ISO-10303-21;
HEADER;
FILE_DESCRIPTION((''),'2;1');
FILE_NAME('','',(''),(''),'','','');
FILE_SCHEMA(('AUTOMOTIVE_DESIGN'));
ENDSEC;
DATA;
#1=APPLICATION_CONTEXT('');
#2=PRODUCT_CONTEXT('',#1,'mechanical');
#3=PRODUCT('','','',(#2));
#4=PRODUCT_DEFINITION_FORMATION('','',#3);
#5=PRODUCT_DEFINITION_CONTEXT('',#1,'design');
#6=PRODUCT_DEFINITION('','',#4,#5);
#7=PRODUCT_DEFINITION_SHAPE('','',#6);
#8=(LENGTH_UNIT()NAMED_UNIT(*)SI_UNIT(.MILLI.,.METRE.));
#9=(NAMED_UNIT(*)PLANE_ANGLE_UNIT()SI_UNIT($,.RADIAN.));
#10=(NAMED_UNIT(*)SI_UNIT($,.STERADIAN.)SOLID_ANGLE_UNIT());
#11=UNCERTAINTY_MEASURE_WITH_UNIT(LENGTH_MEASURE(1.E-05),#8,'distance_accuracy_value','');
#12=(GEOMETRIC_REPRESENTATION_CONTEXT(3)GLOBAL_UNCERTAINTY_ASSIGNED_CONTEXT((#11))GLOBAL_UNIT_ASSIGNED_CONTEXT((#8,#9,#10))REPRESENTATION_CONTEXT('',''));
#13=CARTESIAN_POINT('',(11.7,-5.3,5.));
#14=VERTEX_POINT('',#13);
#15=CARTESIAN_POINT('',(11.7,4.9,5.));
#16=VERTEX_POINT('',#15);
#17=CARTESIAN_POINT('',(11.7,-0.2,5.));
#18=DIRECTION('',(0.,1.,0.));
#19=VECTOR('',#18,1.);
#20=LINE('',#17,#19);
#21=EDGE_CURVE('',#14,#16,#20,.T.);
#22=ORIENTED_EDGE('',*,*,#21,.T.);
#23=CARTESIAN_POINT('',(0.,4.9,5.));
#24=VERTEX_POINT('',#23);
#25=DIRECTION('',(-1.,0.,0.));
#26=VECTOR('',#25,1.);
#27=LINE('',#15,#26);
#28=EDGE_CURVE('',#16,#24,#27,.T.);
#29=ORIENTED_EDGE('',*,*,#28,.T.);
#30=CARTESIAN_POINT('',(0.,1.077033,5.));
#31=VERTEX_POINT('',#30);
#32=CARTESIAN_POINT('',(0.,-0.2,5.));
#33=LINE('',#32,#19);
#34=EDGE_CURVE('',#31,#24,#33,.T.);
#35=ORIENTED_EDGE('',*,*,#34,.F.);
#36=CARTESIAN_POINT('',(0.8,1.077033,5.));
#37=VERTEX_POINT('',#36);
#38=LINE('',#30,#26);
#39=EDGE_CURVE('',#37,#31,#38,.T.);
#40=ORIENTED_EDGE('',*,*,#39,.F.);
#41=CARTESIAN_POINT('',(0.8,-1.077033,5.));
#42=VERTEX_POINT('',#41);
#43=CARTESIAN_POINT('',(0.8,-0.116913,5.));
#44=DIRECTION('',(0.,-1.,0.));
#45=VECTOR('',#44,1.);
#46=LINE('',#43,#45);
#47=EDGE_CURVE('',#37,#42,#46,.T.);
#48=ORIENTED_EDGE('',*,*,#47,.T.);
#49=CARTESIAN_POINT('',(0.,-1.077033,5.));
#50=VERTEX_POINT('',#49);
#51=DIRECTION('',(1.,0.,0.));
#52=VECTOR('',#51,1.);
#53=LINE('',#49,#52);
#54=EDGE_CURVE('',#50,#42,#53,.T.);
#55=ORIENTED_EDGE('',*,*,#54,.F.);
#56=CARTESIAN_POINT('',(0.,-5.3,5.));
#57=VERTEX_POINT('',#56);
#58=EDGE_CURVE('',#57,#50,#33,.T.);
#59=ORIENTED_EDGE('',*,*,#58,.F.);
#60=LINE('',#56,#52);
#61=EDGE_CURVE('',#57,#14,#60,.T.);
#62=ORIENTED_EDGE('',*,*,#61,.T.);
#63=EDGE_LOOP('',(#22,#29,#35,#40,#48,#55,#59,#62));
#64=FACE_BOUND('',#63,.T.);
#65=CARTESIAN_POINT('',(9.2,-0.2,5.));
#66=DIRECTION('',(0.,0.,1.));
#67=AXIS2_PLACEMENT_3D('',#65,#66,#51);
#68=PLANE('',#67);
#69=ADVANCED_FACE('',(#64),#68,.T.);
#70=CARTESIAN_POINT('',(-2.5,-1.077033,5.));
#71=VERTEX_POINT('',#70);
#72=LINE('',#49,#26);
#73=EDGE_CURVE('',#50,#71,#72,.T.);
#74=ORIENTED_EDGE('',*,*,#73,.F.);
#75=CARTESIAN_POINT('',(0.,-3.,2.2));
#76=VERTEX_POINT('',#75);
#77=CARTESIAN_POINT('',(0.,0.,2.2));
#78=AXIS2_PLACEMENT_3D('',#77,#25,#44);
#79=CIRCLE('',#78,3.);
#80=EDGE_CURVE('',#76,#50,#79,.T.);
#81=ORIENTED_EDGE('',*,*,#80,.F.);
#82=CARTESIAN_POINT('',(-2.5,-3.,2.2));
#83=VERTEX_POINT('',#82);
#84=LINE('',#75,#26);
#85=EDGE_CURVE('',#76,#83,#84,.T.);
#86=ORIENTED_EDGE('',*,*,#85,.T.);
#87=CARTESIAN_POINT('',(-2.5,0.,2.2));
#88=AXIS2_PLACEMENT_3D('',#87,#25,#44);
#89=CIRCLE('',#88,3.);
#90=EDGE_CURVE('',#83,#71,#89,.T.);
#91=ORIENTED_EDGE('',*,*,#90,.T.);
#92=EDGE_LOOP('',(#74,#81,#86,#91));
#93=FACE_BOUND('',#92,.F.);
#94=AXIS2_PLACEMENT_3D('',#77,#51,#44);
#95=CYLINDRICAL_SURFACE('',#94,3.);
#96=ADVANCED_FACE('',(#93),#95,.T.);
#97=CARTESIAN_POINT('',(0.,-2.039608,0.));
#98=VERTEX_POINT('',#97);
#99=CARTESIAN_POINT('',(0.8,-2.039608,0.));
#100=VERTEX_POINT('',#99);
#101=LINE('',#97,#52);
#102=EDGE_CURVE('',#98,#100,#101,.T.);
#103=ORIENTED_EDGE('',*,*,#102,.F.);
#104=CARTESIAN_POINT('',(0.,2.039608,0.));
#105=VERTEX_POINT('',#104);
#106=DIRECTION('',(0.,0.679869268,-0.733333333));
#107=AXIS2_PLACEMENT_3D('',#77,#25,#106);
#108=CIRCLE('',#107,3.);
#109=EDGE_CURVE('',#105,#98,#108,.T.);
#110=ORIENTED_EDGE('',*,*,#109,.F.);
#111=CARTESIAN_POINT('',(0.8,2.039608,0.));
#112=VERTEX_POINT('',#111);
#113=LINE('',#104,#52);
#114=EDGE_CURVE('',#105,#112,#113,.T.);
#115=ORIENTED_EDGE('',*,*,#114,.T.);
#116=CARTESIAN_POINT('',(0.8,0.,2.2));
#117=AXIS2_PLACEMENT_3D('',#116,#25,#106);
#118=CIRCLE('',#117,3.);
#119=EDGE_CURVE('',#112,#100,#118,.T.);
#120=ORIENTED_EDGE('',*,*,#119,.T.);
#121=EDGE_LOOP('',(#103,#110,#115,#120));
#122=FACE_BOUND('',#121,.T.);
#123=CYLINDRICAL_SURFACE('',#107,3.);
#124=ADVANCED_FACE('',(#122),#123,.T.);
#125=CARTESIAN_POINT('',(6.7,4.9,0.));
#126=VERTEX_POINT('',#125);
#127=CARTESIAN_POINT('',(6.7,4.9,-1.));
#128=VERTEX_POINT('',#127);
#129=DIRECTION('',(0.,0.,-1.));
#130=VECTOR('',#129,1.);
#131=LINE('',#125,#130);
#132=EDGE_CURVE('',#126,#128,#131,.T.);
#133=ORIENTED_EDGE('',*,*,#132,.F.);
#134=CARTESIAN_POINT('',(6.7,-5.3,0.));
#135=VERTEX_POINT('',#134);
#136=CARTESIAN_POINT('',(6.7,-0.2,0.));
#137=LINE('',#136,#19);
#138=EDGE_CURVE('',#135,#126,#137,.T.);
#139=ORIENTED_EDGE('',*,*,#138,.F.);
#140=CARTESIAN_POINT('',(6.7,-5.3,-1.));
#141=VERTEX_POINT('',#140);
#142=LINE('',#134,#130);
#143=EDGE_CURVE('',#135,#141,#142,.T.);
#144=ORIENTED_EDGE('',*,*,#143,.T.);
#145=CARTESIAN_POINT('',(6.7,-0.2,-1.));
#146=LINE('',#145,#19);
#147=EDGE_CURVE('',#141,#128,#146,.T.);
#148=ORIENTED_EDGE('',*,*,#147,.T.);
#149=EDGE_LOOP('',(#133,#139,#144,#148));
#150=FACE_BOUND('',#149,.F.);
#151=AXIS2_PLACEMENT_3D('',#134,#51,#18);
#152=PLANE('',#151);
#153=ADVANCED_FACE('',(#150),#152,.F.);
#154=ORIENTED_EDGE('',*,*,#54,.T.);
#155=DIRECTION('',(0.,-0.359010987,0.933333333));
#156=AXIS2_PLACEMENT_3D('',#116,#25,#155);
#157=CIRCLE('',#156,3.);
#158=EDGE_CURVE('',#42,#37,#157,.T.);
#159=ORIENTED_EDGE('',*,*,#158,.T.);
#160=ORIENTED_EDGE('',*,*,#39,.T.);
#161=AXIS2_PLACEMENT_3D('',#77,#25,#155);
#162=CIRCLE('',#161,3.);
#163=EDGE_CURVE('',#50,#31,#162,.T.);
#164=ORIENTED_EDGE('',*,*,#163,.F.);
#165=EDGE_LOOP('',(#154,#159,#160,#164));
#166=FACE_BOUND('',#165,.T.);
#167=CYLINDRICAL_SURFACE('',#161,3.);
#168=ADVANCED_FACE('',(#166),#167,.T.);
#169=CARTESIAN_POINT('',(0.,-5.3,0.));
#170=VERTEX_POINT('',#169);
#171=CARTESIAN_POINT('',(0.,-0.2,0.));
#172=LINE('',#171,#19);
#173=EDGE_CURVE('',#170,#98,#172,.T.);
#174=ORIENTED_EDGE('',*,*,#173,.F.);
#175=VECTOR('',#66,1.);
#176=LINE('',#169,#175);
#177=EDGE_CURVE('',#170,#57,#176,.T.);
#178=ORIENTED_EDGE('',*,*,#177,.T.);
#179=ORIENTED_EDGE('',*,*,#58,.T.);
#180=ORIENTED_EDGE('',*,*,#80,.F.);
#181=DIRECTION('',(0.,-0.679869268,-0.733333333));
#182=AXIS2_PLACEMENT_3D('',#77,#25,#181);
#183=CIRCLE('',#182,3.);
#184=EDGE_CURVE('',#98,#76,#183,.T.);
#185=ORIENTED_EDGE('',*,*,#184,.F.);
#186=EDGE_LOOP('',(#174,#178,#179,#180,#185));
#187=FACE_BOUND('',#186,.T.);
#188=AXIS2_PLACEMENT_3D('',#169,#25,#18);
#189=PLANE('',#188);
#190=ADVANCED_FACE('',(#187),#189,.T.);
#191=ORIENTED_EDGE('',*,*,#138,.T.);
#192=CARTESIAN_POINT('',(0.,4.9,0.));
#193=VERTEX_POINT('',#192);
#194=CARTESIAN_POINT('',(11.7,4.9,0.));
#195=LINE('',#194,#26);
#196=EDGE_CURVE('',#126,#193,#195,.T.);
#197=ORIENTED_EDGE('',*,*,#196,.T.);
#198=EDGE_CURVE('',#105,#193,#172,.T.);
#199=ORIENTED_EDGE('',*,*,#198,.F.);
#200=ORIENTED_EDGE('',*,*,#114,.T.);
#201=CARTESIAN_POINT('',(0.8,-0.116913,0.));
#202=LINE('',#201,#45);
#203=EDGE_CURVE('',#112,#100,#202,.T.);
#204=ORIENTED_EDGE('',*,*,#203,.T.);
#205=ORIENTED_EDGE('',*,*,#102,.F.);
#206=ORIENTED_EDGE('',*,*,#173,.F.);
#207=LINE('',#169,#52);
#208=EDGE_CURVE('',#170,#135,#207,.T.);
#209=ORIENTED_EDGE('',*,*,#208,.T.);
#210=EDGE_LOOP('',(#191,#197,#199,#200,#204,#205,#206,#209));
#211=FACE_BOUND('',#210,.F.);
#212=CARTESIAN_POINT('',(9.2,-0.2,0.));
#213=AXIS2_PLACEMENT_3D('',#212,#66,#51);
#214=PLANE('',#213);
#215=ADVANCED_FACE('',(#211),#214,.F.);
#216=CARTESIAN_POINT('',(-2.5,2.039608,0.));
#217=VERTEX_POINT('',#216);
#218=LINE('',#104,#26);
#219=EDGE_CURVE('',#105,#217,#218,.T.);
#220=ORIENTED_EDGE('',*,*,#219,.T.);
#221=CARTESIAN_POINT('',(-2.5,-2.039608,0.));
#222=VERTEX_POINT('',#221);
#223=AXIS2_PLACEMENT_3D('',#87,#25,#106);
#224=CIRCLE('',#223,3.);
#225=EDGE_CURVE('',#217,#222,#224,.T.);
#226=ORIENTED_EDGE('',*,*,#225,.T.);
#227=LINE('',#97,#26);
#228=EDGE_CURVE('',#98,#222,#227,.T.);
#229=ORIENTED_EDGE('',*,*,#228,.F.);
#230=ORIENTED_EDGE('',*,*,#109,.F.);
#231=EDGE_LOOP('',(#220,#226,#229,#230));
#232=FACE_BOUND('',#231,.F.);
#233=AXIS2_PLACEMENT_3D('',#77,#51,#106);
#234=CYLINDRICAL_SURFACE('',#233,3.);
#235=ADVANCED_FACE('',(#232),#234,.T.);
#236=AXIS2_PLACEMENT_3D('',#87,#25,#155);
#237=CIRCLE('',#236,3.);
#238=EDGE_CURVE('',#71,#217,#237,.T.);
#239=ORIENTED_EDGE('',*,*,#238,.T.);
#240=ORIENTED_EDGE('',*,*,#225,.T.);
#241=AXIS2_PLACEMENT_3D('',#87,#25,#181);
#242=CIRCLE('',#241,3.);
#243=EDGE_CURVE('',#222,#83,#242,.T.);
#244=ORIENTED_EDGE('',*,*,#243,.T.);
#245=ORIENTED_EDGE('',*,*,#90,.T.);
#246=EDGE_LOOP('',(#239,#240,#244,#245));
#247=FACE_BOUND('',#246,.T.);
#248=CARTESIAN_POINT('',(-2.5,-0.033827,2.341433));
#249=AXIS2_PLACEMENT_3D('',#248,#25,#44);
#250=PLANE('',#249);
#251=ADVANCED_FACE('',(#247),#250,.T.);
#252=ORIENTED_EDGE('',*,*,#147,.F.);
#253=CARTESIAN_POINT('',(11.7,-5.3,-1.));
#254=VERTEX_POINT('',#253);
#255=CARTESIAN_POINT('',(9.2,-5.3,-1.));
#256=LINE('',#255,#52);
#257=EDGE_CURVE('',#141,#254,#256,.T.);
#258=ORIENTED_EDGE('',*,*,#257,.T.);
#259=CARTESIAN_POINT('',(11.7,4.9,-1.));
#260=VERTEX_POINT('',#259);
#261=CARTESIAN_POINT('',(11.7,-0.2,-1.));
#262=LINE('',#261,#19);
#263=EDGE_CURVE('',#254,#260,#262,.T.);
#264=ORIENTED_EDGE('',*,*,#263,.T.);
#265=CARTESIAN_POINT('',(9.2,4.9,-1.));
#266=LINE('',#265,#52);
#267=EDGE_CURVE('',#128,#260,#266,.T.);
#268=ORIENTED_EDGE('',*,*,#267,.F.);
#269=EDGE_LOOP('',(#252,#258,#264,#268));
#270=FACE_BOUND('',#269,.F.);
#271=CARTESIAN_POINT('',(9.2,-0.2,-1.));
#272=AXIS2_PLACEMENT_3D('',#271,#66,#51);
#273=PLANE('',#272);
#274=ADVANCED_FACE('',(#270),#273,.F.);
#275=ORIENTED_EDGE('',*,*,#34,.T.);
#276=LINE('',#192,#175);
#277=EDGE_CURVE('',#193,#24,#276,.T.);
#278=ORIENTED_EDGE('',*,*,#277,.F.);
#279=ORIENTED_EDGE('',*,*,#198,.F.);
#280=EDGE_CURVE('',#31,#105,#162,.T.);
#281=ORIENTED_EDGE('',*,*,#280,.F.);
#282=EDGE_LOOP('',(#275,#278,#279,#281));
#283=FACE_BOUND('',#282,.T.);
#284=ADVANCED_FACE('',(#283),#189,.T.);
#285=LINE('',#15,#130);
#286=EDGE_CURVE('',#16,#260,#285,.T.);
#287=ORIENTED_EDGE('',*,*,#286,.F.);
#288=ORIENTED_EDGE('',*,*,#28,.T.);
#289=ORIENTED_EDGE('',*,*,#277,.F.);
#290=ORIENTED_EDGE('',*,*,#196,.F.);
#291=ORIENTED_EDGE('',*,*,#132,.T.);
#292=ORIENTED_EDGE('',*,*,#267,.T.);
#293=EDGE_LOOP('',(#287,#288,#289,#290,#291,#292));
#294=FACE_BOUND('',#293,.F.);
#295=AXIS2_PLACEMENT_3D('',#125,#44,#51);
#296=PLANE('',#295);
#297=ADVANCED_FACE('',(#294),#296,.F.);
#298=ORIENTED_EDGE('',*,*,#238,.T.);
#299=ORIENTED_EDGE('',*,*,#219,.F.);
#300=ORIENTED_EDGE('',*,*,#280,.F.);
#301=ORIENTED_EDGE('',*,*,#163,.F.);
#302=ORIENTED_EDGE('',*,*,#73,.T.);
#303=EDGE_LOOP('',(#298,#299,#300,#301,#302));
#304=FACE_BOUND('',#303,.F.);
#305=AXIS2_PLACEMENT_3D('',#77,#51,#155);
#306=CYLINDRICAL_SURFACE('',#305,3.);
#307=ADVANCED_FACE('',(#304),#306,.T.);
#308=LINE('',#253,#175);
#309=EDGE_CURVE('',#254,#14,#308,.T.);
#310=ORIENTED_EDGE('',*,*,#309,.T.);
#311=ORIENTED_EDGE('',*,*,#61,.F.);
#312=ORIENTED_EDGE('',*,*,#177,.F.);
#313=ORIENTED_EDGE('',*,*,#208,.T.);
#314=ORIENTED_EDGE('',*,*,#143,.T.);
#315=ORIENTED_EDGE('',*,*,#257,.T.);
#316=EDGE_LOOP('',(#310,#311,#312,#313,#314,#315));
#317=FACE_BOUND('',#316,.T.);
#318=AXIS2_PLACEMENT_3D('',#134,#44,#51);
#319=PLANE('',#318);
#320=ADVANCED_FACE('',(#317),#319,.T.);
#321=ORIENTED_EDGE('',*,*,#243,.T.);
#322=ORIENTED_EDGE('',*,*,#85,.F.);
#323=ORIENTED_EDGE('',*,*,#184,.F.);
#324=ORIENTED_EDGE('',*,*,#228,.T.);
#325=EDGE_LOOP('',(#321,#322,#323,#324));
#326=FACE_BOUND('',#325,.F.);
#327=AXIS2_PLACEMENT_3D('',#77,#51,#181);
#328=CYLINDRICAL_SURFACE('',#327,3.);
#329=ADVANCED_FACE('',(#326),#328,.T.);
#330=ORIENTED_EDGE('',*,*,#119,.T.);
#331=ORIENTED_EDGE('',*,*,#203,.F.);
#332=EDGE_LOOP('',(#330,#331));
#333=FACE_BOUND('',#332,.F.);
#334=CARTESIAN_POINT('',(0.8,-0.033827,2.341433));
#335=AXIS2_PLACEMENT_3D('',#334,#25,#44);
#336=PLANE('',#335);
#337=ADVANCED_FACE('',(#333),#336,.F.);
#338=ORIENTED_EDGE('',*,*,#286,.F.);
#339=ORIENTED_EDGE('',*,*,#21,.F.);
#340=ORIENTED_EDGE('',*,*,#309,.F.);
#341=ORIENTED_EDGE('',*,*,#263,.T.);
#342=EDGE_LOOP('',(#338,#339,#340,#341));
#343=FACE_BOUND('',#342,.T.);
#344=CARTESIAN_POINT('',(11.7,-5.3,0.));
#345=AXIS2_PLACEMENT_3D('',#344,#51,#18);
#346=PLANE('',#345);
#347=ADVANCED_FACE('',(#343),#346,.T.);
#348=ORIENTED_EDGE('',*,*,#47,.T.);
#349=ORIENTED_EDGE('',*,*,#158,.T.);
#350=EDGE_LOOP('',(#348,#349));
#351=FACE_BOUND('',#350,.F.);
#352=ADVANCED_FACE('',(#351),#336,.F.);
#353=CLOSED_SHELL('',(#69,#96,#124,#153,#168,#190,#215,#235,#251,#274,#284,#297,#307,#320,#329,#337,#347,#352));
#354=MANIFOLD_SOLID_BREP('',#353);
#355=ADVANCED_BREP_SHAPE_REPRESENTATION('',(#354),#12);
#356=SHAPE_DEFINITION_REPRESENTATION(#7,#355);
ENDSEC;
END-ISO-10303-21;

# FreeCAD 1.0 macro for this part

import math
import FreeCAD as App
import Part
import Sketcher

V = App.Vector
Q = App.Units.Quantity


def add_polygon(sketch, points):
    """Adds a closed chain of lines whose ends are joined by coincident constraints."""
    first, n = sketch.GeometryCount, len(points)
    for a, b in zip(points, points[1:] + points[:1]):
        sketch.addGeometry(Part.LineSegment(App.Vector(*a, 0), App.Vector(*b, 0)), False)
    for i in range(n):
        sketch.addConstraint(Sketcher.Constraint("Coincident", first + i, 2, first + (i + 1) % n, 1))

doc = App.newDocument("Part")
body = doc.addObject("PartDesign::Body", "Body")

# Sketch on XY plane
sketch1 = body.newObject("Sketcher::SketchObject", "Sketch")
sketch1.AttachmentSupport = (doc.getObject("XY_Plane"), [""])
sketch1.MapMode = "FlatFace"
add_polygon(sketch1, [(11.7, -5.3), (11.7, 4.9), (0, 4.9), (0, -5.3)])  # lines 0-3
sketch1.addConstraint([
    Sketcher.Constraint("Vertical", 0),
    Sketcher.Constraint("Horizontal", 1),
    Sketcher.Constraint("Vertical", 2),
    Sketcher.Constraint("Horizontal", 3),
    Sketcher.Constraint("PointOnObject", 1, 2, -2),
    Sketcher.Constraint("DistanceX", 1, 2, 1, 1, Q("11.7 mm")),
    Sketcher.Constraint("DistanceY", 0, 1, 0, 2, Q("10.2 mm")),
    Sketcher.Constraint("DistanceY", -1, 1, 0, 2, Q("4.9 mm")),
])
pad1 = body.newObject("PartDesign::Pad", "Pad")
pad1.Profile = sketch1
pad1.Length = 5

# Sketch on XY plane
sketch2 = body.newObject("Sketcher::SketchObject", "Sketch001")
sketch2.AttachmentSupport = (doc.getObject("XY_Plane"), [""])
sketch2.MapMode = "FlatFace"
add_polygon(sketch2, [(6.7, 4.9), (6.7, -5.3), (11.7, -5.3), (11.7, 4.9)])  # lines 0-3
sketch2.addConstraint([
    Sketcher.Constraint("Vertical", 0),
    Sketcher.Constraint("Horizontal", 1),
    Sketcher.Constraint("Vertical", 2),
    Sketcher.Constraint("Horizontal", 3),
    Sketcher.Constraint("DistanceX", 1, 1, 1, 2, Q("5 mm")),
    Sketcher.Constraint("DistanceY", 0, 2, 0, 1, Q("10.2 mm")),
    Sketcher.Constraint("DistanceX", -1, 1, 0, 2, Q("6.7 mm")),
    Sketcher.Constraint("DistanceY", 0, 2, -1, 1, Q("5.3 mm")),
])
pad2 = body.newObject("PartDesign::Pad", "Pad001")
pad2.Profile = sketch2
pad2.Length = 1
pad2.Reversed = True

# Sketch on YZ plane
sketch3 = body.newObject("Sketcher::SketchObject", "Sketch002")
sketch3.AttachmentSupport = (doc.getObject("YZ_Plane"), [""])
sketch3.MapMode = "FlatFace"
sketch3.addGeometry([
    Part.ArcOfCircle(Part.Circle(V(0, 2.2, 0), V(0, 0, 1), 3), math.radians(180), math.radians(227.166572)),
    Part.ArcOfCircle(Part.Circle(V(0, 2.2, 0), V(0, 0, 1), 3), math.radians(111.03947), math.radians(180)),
    Part.ArcOfCircle(Part.Circle(V(0, 2.2, 0), V(0, 0, 1), 3), math.radians(-47.166572), math.radians(111.03947)),
    Part.ArcOfCircle(Part.Circle(V(0, 2.2, 0), V(0, 0, 1), 3), math.radians(-132.833428), math.radians(-47.166572)),
], False)
sketch3.addConstraint([
    Sketcher.Constraint("Tangent", 0, 1, 1, 2),
    Sketcher.Constraint("Tangent", 1, 1, 2, 2),
    Sketcher.Constraint("Tangent", 2, 1, 3, 2),
    Sketcher.Constraint("Tangent", 3, 1, 0, 2),
    Sketcher.Constraint("Equal", 0, 1),
    Sketcher.Constraint("Symmetric", 2, 1, 3, 1, -1, 1),
    Sketcher.Constraint("PointOnObject", 0, 3, -2),
    Sketcher.Constraint("Horizontal", 3, 3, 0, 1),
    Sketcher.Constraint("Radius", 0, Q("3 mm")),
    Sketcher.Constraint("DistanceY", -1, 1, 1, 1, Q("5 mm")),
    Sketcher.Constraint("DistanceY", -1, 1, 0, 3, Q("2.2 mm")),
])
pad3 = body.newObject("PartDesign::Pad", "Pad002")
pad3.Profile = sketch3
pad3.Type = "TwoLengths"
pad3.Length = 2.5
pad3.Length2 = 0.8
pad3.Reversed = True

doc.recompute()
